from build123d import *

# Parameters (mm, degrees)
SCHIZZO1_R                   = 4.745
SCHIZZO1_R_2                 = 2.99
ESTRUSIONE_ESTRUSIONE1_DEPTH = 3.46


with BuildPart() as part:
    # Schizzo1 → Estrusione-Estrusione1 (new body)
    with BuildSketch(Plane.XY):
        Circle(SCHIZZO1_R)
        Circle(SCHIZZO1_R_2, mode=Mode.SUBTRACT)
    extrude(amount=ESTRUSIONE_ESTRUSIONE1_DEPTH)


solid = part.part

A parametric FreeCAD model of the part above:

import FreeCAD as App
import Part
import Sketcher
from FreeCAD import Vector

doc = App.newDocument("Part")
body = doc.addObject("PartDesign::Body", "Body")

# Sketch on XY plane
sketch1 = doc.addObject("Sketcher::SketchObject", "Sketch")
body.addObject(sketch1)
sketch1.AttachmentSupport = (doc.XY_Plane, [""])
sketch1.MapMode = "FlatFace"
sketch1.addGeometry([
    Part.Circle(Vector(0, 0, 0), Vector(0, 0, 1), 4.7),
    Part.Circle(Vector(0, 0, 0), Vector(0, 0, 1), 3),
], False)
sketch1.addConstraint([
    Sketcher.Constraint("Coincident", 0, 3, -1, 1),
    Sketcher.Constraint("Coincident", 1, 3, -1, 1),
    Sketcher.Constraint("Diameter", 0, 9.49),
    Sketcher.Constraint("Diameter", 1, 5.98),
])
pad1 = doc.addObject("PartDesign::Pad", "Pad")
body.addObject(pad1)
pad1.Profile = sketch1
pad1.Length = 3.46

doc.recompute()
